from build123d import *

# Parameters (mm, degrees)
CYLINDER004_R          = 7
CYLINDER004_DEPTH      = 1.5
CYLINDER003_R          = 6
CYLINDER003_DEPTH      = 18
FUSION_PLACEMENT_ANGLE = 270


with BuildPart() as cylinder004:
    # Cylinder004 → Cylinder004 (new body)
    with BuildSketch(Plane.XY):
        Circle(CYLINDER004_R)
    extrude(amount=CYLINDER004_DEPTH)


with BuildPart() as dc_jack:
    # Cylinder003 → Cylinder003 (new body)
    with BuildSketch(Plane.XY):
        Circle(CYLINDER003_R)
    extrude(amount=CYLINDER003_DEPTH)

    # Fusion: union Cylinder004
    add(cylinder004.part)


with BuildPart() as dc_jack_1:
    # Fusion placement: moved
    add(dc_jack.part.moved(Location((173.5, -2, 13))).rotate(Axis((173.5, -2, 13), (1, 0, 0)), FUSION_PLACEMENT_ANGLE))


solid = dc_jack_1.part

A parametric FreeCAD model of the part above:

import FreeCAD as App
import Part
import Sketcher
Q = App.Units.Quantity

doc = App.newDocument("Part")
params = doc.addObject("Spreadsheet::Sheet", "Params")
for row, (alias, value) in enumerate([
    ("sketch1_diameter", "14 mm"),
    ("pad1_length", "1.5 mm"),
    ("sketch2_diameter", "12 mm"),
    ("pad2_length", "18 mm"),
], start=1):
    params.set(f"A{row}", alias)
    params.set(f"B{row}", "=" + value)
    params.setAlias(f"B{row}", alias)

body = doc.addObject("PartDesign::Body", "Body")

# Sketch on XY plane
sketch1 = doc.addObject("Sketcher::SketchObject", "Sketch")
body.addObject(sketch1)
sketch1.AttachmentSupport = (doc.XY_Plane, [""])
sketch1.MapMode = "FlatFace"
sketch1.addGeometry(Part.Circle(App.Vector(0, 0, 0), App.Vector(0, 0, 1), 7), False)
sketch1.addConstraint(Sketcher.Constraint("Coincident", 0, 3, -1, 1))
sketch1.addConstraint(Sketcher.Constraint("Diameter", 0, Q("14 mm")))
sketch1.setExpression("Constraints[1]", "Params.sketch1_diameter")
pad1 = doc.addObject("PartDesign::Pad", "Pad")
body.addObject(pad1)
pad1.Profile = sketch1
pad1.setExpression("Length", "Params.pad1_length")
body2 = doc.addObject("PartDesign::Body", "Body001")

# Sketch on XY plane
sketch2 = doc.addObject("Sketcher::SketchObject", "Sketch001")
body2.addObject(sketch2)
sketch2.AttachmentSupport = (doc.getObject("XY_Plane001"), [""])
sketch2.MapMode = "FlatFace"
sketch2.addGeometry(Part.Circle(App.Vector(0, 0, 0), App.Vector(0, 0, 1), 6), False)
sketch2.addConstraint(Sketcher.Constraint("Coincident", 0, 3, -1, 1))
sketch2.addConstraint(Sketcher.Constraint("Diameter", 0, Q("12 mm")))
sketch2.setExpression("Constraints[1]", "Params.sketch2_diameter")
pad2 = doc.addObject("PartDesign::Pad", "Pad001")
body2.addObject(pad2)
pad2.Profile = sketch2
pad2.setExpression("Length", "Params.pad2_length")
doc.recompute()

boolean = doc.addObject("PartDesign::Boolean", "Boolean")
body2.addObject(boolean)
boolean.Type = "Fuse"
boolean.addObjects([body])
body3 = doc.addObject("PartDesign::Body", "Body002")
doc.recompute()

body2.Placement = App.Placement(App.Vector(173.5, -2, 13), App.Rotation(App.Vector(1, 0, 0), 270))
boolean2 = doc.addObject("PartDesign::Boolean", "Boolean001")
body3.addObject(boolean2)
boolean2.Type = "Fuse"
boolean2.addObjects([body2])

doc.recompute()
